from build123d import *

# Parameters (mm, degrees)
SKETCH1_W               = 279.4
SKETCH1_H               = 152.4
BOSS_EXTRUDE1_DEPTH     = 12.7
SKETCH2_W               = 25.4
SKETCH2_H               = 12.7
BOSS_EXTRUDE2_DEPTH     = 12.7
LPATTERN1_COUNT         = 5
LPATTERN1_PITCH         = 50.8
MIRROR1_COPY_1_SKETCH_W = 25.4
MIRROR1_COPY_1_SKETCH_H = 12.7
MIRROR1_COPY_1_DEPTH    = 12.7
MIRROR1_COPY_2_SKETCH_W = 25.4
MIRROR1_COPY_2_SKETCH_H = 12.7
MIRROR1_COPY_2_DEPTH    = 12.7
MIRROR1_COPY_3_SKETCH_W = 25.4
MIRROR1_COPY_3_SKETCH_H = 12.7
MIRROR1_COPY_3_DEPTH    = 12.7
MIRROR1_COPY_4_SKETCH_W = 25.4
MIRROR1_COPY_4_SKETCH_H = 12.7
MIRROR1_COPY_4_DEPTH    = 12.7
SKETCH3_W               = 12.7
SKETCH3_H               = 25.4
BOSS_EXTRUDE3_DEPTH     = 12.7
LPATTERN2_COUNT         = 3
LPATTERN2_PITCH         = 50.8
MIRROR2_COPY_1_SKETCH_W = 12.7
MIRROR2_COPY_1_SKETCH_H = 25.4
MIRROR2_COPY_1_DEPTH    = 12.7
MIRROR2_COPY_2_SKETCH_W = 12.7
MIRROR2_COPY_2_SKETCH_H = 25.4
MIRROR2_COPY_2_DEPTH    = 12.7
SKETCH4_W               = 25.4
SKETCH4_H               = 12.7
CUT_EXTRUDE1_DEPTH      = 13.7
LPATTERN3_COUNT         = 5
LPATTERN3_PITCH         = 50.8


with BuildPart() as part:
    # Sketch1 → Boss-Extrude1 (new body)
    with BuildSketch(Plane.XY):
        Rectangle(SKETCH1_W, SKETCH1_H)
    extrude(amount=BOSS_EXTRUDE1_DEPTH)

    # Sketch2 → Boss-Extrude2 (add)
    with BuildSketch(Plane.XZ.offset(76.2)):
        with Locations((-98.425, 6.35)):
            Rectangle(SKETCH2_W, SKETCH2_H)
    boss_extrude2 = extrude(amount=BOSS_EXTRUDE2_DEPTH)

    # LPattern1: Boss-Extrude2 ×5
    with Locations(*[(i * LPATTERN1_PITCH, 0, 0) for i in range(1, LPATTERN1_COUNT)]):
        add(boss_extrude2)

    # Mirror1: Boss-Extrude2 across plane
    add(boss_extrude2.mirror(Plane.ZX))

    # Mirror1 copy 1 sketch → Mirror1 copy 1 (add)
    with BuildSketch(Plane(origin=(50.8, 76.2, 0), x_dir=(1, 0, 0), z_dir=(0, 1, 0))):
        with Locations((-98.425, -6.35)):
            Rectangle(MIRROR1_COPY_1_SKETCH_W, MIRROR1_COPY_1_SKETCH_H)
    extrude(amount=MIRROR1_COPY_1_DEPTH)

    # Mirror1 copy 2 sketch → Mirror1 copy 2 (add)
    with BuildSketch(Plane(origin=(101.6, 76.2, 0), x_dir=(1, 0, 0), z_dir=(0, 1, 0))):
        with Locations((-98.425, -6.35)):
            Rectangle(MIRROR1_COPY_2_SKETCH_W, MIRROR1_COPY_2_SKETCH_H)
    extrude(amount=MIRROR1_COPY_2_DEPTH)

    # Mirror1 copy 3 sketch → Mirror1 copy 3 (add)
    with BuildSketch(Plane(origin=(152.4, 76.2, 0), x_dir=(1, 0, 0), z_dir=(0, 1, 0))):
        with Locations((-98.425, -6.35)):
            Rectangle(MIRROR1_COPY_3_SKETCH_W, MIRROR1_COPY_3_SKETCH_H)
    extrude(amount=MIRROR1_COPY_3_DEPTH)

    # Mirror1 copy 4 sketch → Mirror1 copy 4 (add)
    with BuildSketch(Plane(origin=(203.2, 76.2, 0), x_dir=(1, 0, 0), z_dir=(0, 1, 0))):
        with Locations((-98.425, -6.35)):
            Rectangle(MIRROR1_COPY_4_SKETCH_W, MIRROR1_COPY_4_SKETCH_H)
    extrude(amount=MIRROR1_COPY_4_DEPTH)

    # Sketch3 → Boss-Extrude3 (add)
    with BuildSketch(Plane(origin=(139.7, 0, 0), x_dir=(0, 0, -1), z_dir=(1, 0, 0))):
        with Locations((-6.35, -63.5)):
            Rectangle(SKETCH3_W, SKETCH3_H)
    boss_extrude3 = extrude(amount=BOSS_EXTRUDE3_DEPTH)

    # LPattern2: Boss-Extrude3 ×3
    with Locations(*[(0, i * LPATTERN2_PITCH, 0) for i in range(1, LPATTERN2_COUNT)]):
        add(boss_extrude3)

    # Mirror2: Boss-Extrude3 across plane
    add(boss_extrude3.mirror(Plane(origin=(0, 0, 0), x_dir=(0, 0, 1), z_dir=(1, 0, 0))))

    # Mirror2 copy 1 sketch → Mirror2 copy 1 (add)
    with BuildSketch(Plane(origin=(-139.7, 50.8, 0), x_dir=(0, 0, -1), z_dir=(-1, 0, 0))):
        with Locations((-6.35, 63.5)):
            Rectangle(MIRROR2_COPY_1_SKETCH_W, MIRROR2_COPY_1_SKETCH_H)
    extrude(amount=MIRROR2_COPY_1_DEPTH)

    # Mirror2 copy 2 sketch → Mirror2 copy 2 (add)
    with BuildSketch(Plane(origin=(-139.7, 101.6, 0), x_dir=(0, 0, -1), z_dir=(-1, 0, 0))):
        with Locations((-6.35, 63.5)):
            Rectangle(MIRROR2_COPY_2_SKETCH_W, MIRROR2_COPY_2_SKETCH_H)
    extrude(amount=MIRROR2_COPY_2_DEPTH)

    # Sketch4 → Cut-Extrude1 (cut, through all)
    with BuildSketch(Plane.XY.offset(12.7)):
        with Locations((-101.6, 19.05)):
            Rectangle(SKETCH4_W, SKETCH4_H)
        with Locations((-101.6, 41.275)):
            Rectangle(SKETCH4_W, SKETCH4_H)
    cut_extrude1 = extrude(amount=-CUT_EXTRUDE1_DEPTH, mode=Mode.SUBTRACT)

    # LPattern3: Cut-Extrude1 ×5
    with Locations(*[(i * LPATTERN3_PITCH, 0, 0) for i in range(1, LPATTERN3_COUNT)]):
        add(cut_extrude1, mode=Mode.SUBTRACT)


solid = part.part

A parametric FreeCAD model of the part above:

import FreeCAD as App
import Part
import Sketcher
from FreeCAD import Vector
Q = App.Units.Quantity

doc = App.newDocument("Part")
body = doc.addObject("PartDesign::Body", "Body")

# Sketch on XY plane
sketch1 = body.newObject("Sketcher::SketchObject", "Sketch")
sketch1.AttachmentSupport = (doc.getObject("XY_Plane"), [""])
sketch1.MapMode = "FlatFace"
sketch1.addGeometry(Part.LineSegment(Vector(-139.7, 76.2, 0), Vector(-139.7, -76.2, 0)), False)
sketch1.addGeometry(Part.LineSegment(Vector(-139.7, -76.2, 0), Vector(139.7, -76.2, 0)), False)
sketch1.addGeometry(Part.LineSegment(Vector(139.7, -76.2, 0), Vector(139.7, 76.2, 0)), False)
sketch1.addGeometry(Part.LineSegment(Vector(139.7, 76.2, 0), Vector(-139.7, 76.2, 0)), False)
sketch1.addConstraint(Sketcher.Constraint("Coincident", 0, 2, 1, 1))
sketch1.addConstraint(Sketcher.Constraint("Coincident", 1, 2, 2, 1))
sketch1.addConstraint(Sketcher.Constraint("Coincident", 2, 2, 3, 1))
sketch1.addConstraint(Sketcher.Constraint("Coincident", 3, 2, 0, 1))
sketch1.addConstraint(Sketcher.Constraint("Vertical", 0))
sketch1.addConstraint(Sketcher.Constraint("Horizontal", 1))
sketch1.addConstraint(Sketcher.Constraint("Vertical", 2))
sketch1.addConstraint(Sketcher.Constraint("Horizontal", 3))
sketch1.addConstraint(Sketcher.Constraint("Symmetric", 0, 2, 2, 2, -1, 1))
sketch1.addConstraint(Sketcher.Constraint("DistanceX", 1, 1, 1, 2, Q("11 in")))
sketch1.addConstraint(Sketcher.Constraint("DistanceY", 0, 2, 0, 1, Q("6 in")))
pad1 = body.newObject("PartDesign::Pad", "Pad")
pad1.Profile = sketch1
pad1.Length = Q("0.5 in")

# Sketch on XZ plane
sketch2 = body.newObject("Sketcher::SketchObject", "Sketch001")
sketch2.AttachmentSupport = (doc.getObject("XZ_Plane"), [""])
sketch2.MapMode = "FlatFace"
sketch2.AttachmentOffset = App.Placement(Vector(0, 0, 3 * 25.4), App.Rotation())
sketch2.addGeometry(Part.LineSegment(Vector(-111.125, 12.7, 0), Vector(-111.125, 0, 0)), False)
sketch2.addGeometry(Part.LineSegment(Vector(-111.125, 0, 0), Vector(-85.725, 0, 0)), False)
sketch2.addGeometry(Part.LineSegment(Vector(-85.725, 0, 0), Vector(-85.725, 12.7, 0)), False)
sketch2.addGeometry(Part.LineSegment(Vector(-85.725, 12.7, 0), Vector(-111.125, 12.7, 0)), False)
sketch2.addConstraint(Sketcher.Constraint("Coincident", 0, 2, 1, 1))
sketch2.addConstraint(Sketcher.Constraint("Coincident", 1, 2, 2, 1))
sketch2.addConstraint(Sketcher.Constraint("Coincident", 2, 2, 3, 1))
sketch2.addConstraint(Sketcher.Constraint("Coincident", 3, 2, 0, 1))
sketch2.addConstraint(Sketcher.Constraint("Vertical", 0))
sketch2.addConstraint(Sketcher.Constraint("Horizontal", 1))
sketch2.addConstraint(Sketcher.Constraint("Vertical", 2))
sketch2.addConstraint(Sketcher.Constraint("Horizontal", 3))
sketch2.addConstraint(Sketcher.Constraint("PointOnObject", 0, 2, -1))
sketch2.addConstraint(Sketcher.Constraint("DistanceX", 1, 1, 1, 2, Q("1 in")))
sketch2.addConstraint(Sketcher.Constraint("DistanceY", 0, 2, 0, 1, Q("0.5 in")))
sketch2.addConstraint(Sketcher.Constraint("DistanceX", 0, 2, -1, 1, Q("4.375 in")))
pad2 = body.newObject("PartDesign::Pad", "Pad001")
pad2.Profile = sketch2
pad2.Length = Q("0.5 in")
doc.recompute()

linearpattern = body.newObject("PartDesign::LinearPattern", "LinearPattern")
linearpattern.Originals = [pad2]
linearpattern.Direction = (doc.getObject("X_Axis"), [""])
linearpattern.Mode = "offset"
linearpattern.Offset = Q("2 in")
linearpattern.Occurrences = 5
body.Tip = linearpattern
doc.recompute()

mirrored = body.newObject("PartDesign::Mirrored", "Mirrored")
mirrored.Originals = [pad2]
mirrored.MirrorPlane = (doc.getObject("XZ_Plane"), [""])
body.Tip = mirrored

# Sketch on XZ plane
sketch3 = body.newObject("Sketcher::SketchObject", "Sketch002")
sketch3.AttachmentSupport = (doc.getObject("XZ_Plane"), [""])
sketch3.MapMode = "FlatFace"
sketch3.AttachmentOffset = App.Placement(Vector(0, 0, -3 * 25.4), App.Rotation())
sketch3.addGeometry(Part.LineSegment(Vector(-60.325, 0, 0), Vector(-60.325, 12.7, 0)), False)
sketch3.addGeometry(Part.LineSegment(Vector(-60.325, 12.7, 0), Vector(-34.925, 12.7, 0)), False)
sketch3.addGeometry(Part.LineSegment(Vector(-34.925, 12.7, 0), Vector(-34.925, 0, 0)), False)
sketch3.addGeometry(Part.LineSegment(Vector(-34.925, 0, 0), Vector(-60.325, 0, 0)), False)
sketch3.addConstraint(Sketcher.Constraint("Coincident", 0, 2, 1, 1))
sketch3.addConstraint(Sketcher.Constraint("Coincident", 1, 2, 2, 1))
sketch3.addConstraint(Sketcher.Constraint("Coincident", 2, 2, 3, 1))
sketch3.addConstraint(Sketcher.Constraint("Coincident", 3, 2, 0, 1))
sketch3.addConstraint(Sketcher.Constraint("Vertical", 0))
sketch3.addConstraint(Sketcher.Constraint("Horizontal", 1))
sketch3.addConstraint(Sketcher.Constraint("Vertical", 2))
sketch3.addConstraint(Sketcher.Constraint("Horizontal", 3))
sketch3.addConstraint(Sketcher.Constraint("PointOnObject", 2, 2, -1))
sketch3.addConstraint(Sketcher.Constraint("DistanceX", 1, 1, 1, 2, Q("1 in")))
sketch3.addConstraint(Sketcher.Constraint("DistanceY", 0, 1, 0, 2, Q("0.5 in")))
sketch3.addConstraint(Sketcher.Constraint("DistanceX", 0, 2, -1, 1, Q("2.375 in")))
pad3 = body.newObject("PartDesign::Pad", "Pad002")
pad3.Profile = sketch3
pad3.Length = Q("0.5 in")
pad3.Reversed = True

# Sketch on XZ plane
sketch4 = body.newObject("Sketcher::SketchObject", "Sketch003")
sketch4.AttachmentSupport = (doc.getObject("XZ_Plane"), [""])
sketch4.MapMode = "FlatFace"
sketch4.AttachmentOffset = App.Placement(Vector(0, 0, -3 * 25.4), App.Rotation())
sketch4.addGeometry(Part.LineSegment(Vector(-9.525, 0, 0), Vector(-9.525, 12.7, 0)), False)
sketch4.addGeometry(Part.LineSegment(Vector(-9.525, 12.7, 0), Vector(15.875, 12.7, 0)), False)
sketch4.addGeometry(Part.LineSegment(Vector(15.875, 12.7, 0), Vector(15.875, 0, 0)), False)
sketch4.addGeometry(Part.LineSegment(Vector(15.875, 0, 0), Vector(-9.525, 0, 0)), False)
sketch4.addConstraint(Sketcher.Constraint("Coincident", 0, 2, 1, 1))
sketch4.addConstraint(Sketcher.Constraint("Coincident", 1, 2, 2, 1))
sketch4.addConstraint(Sketcher.Constraint("Coincident", 2, 2, 3, 1))
sketch4.addConstraint(Sketcher.Constraint("Coincident", 3, 2, 0, 1))
sketch4.addConstraint(Sketcher.Constraint("Vertical", 0))
sketch4.addConstraint(Sketcher.Constraint("Horizontal", 1))
sketch4.addConstraint(Sketcher.Constraint("Vertical", 2))
sketch4.addConstraint(Sketcher.Constraint("Horizontal", 3))
sketch4.addConstraint(Sketcher.Constraint("PointOnObject", 2, 2, -1))
sketch4.addConstraint(Sketcher.Constraint("DistanceX", 1, 1, 1, 2, Q("1 in")))
sketch4.addConstraint(Sketcher.Constraint("DistanceY", 0, 1, 0, 2, Q("0.5 in")))
sketch4.addConstraint(Sketcher.Constraint("DistanceX", 0, 2, -1, 1, Q("0.375 in")))
pad4 = body.newObject("PartDesign::Pad", "Pad003")
pad4.Profile = sketch4
pad4.Length = Q("0.5 in")
pad4.Reversed = True

# Sketch on XZ plane
sketch5 = body.newObject("Sketcher::SketchObject", "Sketch004")
sketch5.AttachmentSupport = (doc.getObject("XZ_Plane"), [""])
sketch5.MapMode = "FlatFace"
sketch5.AttachmentOffset = App.Placement(Vector(0, 0, -3 * 25.4), App.Rotation())
sketch5.addGeometry(Part.LineSegment(Vector(41.275, 0, 0), Vector(41.275, 12.7, 0)), False)
sketch5.addGeometry(Part.LineSegment(Vector(41.275, 12.7, 0), Vector(66.675, 12.7, 0)), False)
sketch5.addGeometry(Part.LineSegment(Vector(66.675, 12.7, 0), Vector(66.675, 0, 0)), False)
sketch5.addGeometry(Part.LineSegment(Vector(66.675, 0, 0), Vector(41.275, 0, 0)), False)
sketch5.addConstraint(Sketcher.Constraint("Coincident", 0, 2, 1, 1))
sketch5.addConstraint(Sketcher.Constraint("Coincident", 1, 2, 2, 1))
sketch5.addConstraint(Sketcher.Constraint("Coincident", 2, 2, 3, 1))
sketch5.addConstraint(Sketcher.Constraint("Coincident", 3, 2, 0, 1))
sketch5.addConstraint(Sketcher.Constraint("Vertical", 0))
sketch5.addConstraint(Sketcher.Constraint("Horizontal", 1))
sketch5.addConstraint(Sketcher.Constraint("Vertical", 2))
sketch5.addConstraint(Sketcher.Constraint("Horizontal", 3))
sketch5.addConstraint(Sketcher.Constraint("PointOnObject", 2, 2, -1))
sketch5.addConstraint(Sketcher.Constraint("DistanceX", 1, 1, 1, 2, Q("1 in")))
sketch5.addConstraint(Sketcher.Constraint("DistanceY", 0, 1, 0, 2, Q("0.5 in")))
sketch5.addConstraint(Sketcher.Constraint("DistanceX", -1, 1, 0, 2, Q("1.625 in")))
pad5 = body.newObject("PartDesign::Pad", "Pad004")
pad5.Profile = sketch5
pad5.Length = Q("0.5 in")
pad5.Reversed = True

# Sketch on XZ plane
sketch6 = body.newObject("Sketcher::SketchObject", "Sketch005")
sketch6.AttachmentSupport = (doc.getObject("XZ_Plane"), [""])
sketch6.MapMode = "FlatFace"
sketch6.AttachmentOffset = App.Placement(Vector(0, 0, -3 * 25.4), App.Rotation())
sketch6.addGeometry(Part.LineSegment(Vector(92.075, 0, 0), Vector(92.075, 12.7, 0)), False)
sketch6.addGeometry(Part.LineSegment(Vector(92.075, 12.7, 0), Vector(117.475, 12.7, 0)), False)
sketch6.addGeometry(Part.LineSegment(Vector(117.475, 12.7, 0), Vector(117.475, 0, 0)), False)
sketch6.addGeometry(Part.LineSegment(Vector(117.475, 0, 0), Vector(92.075, 0, 0)), False)
sketch6.addConstraint(Sketcher.Constraint("Coincident", 0, 2, 1, 1))
sketch6.addConstraint(Sketcher.Constraint("Coincident", 1, 2, 2, 1))
sketch6.addConstraint(Sketcher.Constraint("Coincident", 2, 2, 3, 1))
sketch6.addConstraint(Sketcher.Constraint("Coincident", 3, 2, 0, 1))
sketch6.addConstraint(Sketcher.Constraint("Vertical", 0))
sketch6.addConstraint(Sketcher.Constraint("Horizontal", 1))
sketch6.addConstraint(Sketcher.Constraint("Vertical", 2))
sketch6.addConstraint(Sketcher.Constraint("Horizontal", 3))
sketch6.addConstraint(Sketcher.Constraint("PointOnObject", 2, 2, -1))
sketch6.addConstraint(Sketcher.Constraint("DistanceX", 1, 1, 1, 2, Q("1 in")))
sketch6.addConstraint(Sketcher.Constraint("DistanceY", 0, 1, 0, 2, Q("0.5 in")))
sketch6.addConstraint(Sketcher.Constraint("DistanceX", -1, 1, 0, 2, Q("3.625 in")))
pad6 = body.newObject("PartDesign::Pad", "Pad005")
pad6.Profile = sketch6
pad6.Length = Q("0.5 in")
pad6.Reversed = True

# Sketch on YZ plane
sketch7 = body.newObject("Sketcher::SketchObject", "Sketch006")
sketch7.AttachmentSupport = (doc.getObject("YZ_Plane"), [""])
sketch7.MapMode = "FlatFace"
sketch7.AttachmentOffset = App.Placement(Vector(0, 0, 5.5 * 25.4), App.Rotation())
sketch7.addGeometry(Part.LineSegment(Vector(-50.8, 12.7, 0), Vector(-76.2, 12.7, 0)), False)
sketch7.addGeometry(Part.LineSegment(Vector(-76.2, 12.7, 0), Vector(-76.2, 0, 0)), False)
sketch7.addGeometry(Part.LineSegment(Vector(-76.2, 0, 0), Vector(-50.8, 0, 0)), False)
sketch7.addGeometry(Part.LineSegment(Vector(-50.8, 0, 0), Vector(-50.8, 12.7, 0)), False)
sketch7.addConstraint(Sketcher.Constraint("Coincident", 0, 2, 1, 1))
sketch7.addConstraint(Sketcher.Constraint("Coincident", 1, 2, 2, 1))
sketch7.addConstraint(Sketcher.Constraint("Coincident", 2, 2, 3, 1))
sketch7.addConstraint(Sketcher.Constraint("Coincident", 3, 2, 0, 1))
sketch7.addConstraint(Sketcher.Constraint("Horizontal", 0))
sketch7.addConstraint(Sketcher.Constraint("Vertical", 1))
sketch7.addConstraint(Sketcher.Constraint("Horizontal", 2))
sketch7.addConstraint(Sketcher.Constraint("Vertical", 3))
sketch7.addConstraint(Sketcher.Constraint("PointOnObject", 1, 2, -1))
sketch7.addConstraint(Sketcher.Constraint("DistanceX", 0, 2, 0, 1, Q("1 in")))
sketch7.addConstraint(Sketcher.Constraint("DistanceY", 1, 2, 1, 1, Q("0.5 in")))
sketch7.addConstraint(Sketcher.Constraint("DistanceX", 0, 2, -1, 1, Q("3 in")))
pad7 = body.newObject("PartDesign::Pad", "Pad006")
pad7.Profile = sketch7
pad7.Length = Q("0.5 in")
doc.recompute()

linearpattern2 = body.newObject("PartDesign::LinearPattern", "LinearPattern001")
linearpattern2.Originals = [pad7]
linearpattern2.Direction = (doc.getObject("Y_Axis"), [""])
linearpattern2.Mode = "offset"
linearpattern2.Offset = Q("2 in")
linearpattern2.Occurrences = 3
body.Tip = linearpattern2
doc.recompute()

mirrored2 = body.newObject("PartDesign::Mirrored", "Mirrored001")
mirrored2.Originals = [pad7]
mirrored2.MirrorPlane = (doc.getObject("YZ_Plane"), [""])
body.Tip = mirrored2

# Sketch on YZ plane
sketch8 = body.newObject("Sketcher::SketchObject", "Sketch007")
sketch8.AttachmentSupport = (doc.getObject("YZ_Plane"), [""])
sketch8.MapMode = "FlatFace"
sketch8.AttachmentOffset = App.Placement(Vector(0, 0, -5.5 * 25.4), App.Rotation())
sketch8.addGeometry(Part.LineSegment(Vector(-25.4, 12.7, 0), Vector(0, 12.7, 0)), False)
sketch8.addGeometry(Part.LineSegment(Vector(0, 12.7, 0), Vector(0, 0, 0)), False)
sketch8.addGeometry(Part.LineSegment(Vector(0, 0, 0), Vector(-25.4, 0, 0)), False)
sketch8.addGeometry(Part.LineSegment(Vector(-25.4, 0, 0), Vector(-25.4, 12.7, 0)), False)
sketch8.addConstraint(Sketcher.Constraint("Coincident", 0, 2, 1, 1))
sketch8.addConstraint(Sketcher.Constraint("Coincident", 1, 2, 2, 1))
sketch8.addConstraint(Sketcher.Constraint("Coincident", 2, 2, 3, 1))
sketch8.addConstraint(Sketcher.Constraint("Coincident", 3, 2, 0, 1))
sketch8.addConstraint(Sketcher.Constraint("Horizontal", 0))
sketch8.addConstraint(Sketcher.Constraint("Vertical", 1))
sketch8.addConstraint(Sketcher.Constraint("Horizontal", 2))
sketch8.addConstraint(Sketcher.Constraint("Vertical", 3))
sketch8.addConstraint(Sketcher.Constraint("Coincident", 1, 2, -1, 1))
sketch8.addConstraint(Sketcher.Constraint("DistanceX", 0, 1, 0, 2, Q("1 in")))
sketch8.addConstraint(Sketcher.Constraint("DistanceY", 1, 2, 1, 1, Q("0.5 in")))
pad8 = body.newObject("PartDesign::Pad", "Pad007")
pad8.Profile = sketch8
pad8.Length = Q("0.5 in")
pad8.Reversed = True

# Sketch on YZ plane
sketch9 = body.newObject("Sketcher::SketchObject", "Sketch008")
sketch9.AttachmentSupport = (doc.getObject("YZ_Plane"), [""])
sketch9.MapMode = "FlatFace"
sketch9.AttachmentOffset = App.Placement(Vector(0, 0, -5.5 * 25.4), App.Rotation())
sketch9.addGeometry(Part.LineSegment(Vector(25.4, 12.7, 0), Vector(50.8, 12.7, 0)), False)
sketch9.addGeometry(Part.LineSegment(Vector(50.8, 12.7, 0), Vector(50.8, 0, 0)), False)
sketch9.addGeometry(Part.LineSegment(Vector(50.8, 0, 0), Vector(25.4, 0, 0)), False)
sketch9.addGeometry(Part.LineSegment(Vector(25.4, 0, 0), Vector(25.4, 12.7, 0)), False)
sketch9.addConstraint(Sketcher.Constraint("Coincident", 0, 2, 1, 1))
sketch9.addConstraint(Sketcher.Constraint("Coincident", 1, 2, 2, 1))
sketch9.addConstraint(Sketcher.Constraint("Coincident", 2, 2, 3, 1))
sketch9.addConstraint(Sketcher.Constraint("Coincident", 3, 2, 0, 1))
sketch9.addConstraint(Sketcher.Constraint("Horizontal", 0))
sketch9.addConstraint(Sketcher.Constraint("Vertical", 1))
sketch9.addConstraint(Sketcher.Constraint("Horizontal", 2))
sketch9.addConstraint(Sketcher.Constraint("Vertical", 3))
sketch9.addConstraint(Sketcher.Constraint("PointOnObject", 1, 2, -1))
sketch9.addConstraint(Sketcher.Constraint("DistanceX", 0, 1, 0, 2, Q("1 in")))
sketch9.addConstraint(Sketcher.Constraint("DistanceY", 1, 2, 1, 1, Q("0.5 in")))
sketch9.addConstraint(Sketcher.Constraint("DistanceX", -1, 1, 0, 2, Q("2 in")))
pad9 = body.newObject("PartDesign::Pad", "Pad008")
pad9.Profile = sketch9
pad9.Length = Q("0.5 in")
pad9.Reversed = True

# Sketch on XY plane
sketch10 = body.newObject("Sketcher::SketchObject", "Sketch009")
sketch10.AttachmentSupport = (doc.getObject("XY_Plane"), [""])
sketch10.MapMode = "FlatFace"
sketch10.AttachmentOffset = App.Placement(Vector(0, 0, 0.5 * 25.4), App.Rotation())
sketch10.addGeometry(Part.LineSegment(Vector(-114.3, 25.4, 0), Vector(-114.3, 12.7, 0)), False)
sketch10.addGeometry(Part.LineSegment(Vector(-114.3, 12.7, 0), Vector(-88.9, 12.7, 0)), False)
sketch10.addGeometry(Part.LineSegment(Vector(-88.9, 12.7, 0), Vector(-88.9, 25.4, 0)), False)
sketch10.addGeometry(Part.LineSegment(Vector(-88.9, 25.4, 0), Vector(-114.3, 25.4, 0)), False)
sketch10.addGeometry(Part.LineSegment(Vector(-114.3, 47.625, 0), Vector(-114.3, 34.925, 0)), False)
sketch10.addGeometry(Part.LineSegment(Vector(-114.3, 34.925, 0), Vector(-88.9, 34.925, 0)), False)
sketch10.addGeometry(Part.LineSegment(Vector(-88.9, 34.925, 0), Vector(-88.9, 47.625, 0)), False)
sketch10.addGeometry(Part.LineSegment(Vector(-88.9, 47.625, 0), Vector(-114.3, 47.625, 0)), False)
sketch10.addConstraint(Sketcher.Constraint("Coincident", 0, 2, 1, 1))
sketch10.addConstraint(Sketcher.Constraint("Coincident", 1, 2, 2, 1))
sketch10.addConstraint(Sketcher.Constraint("Coincident", 2, 2, 3, 1))
sketch10.addConstraint(Sketcher.Constraint("Coincident", 3, 2, 0, 1))
sketch10.addConstraint(Sketcher.Constraint("Coincident", 4, 2, 5, 1))
sketch10.addConstraint(Sketcher.Constraint("Coincident", 5, 2, 6, 1))
sketch10.addConstraint(Sketcher.Constraint("Coincident", 6, 2, 7, 1))
sketch10.addConstraint(Sketcher.Constraint("Coincident", 7, 2, 4, 1))
sketch10.addConstraint(Sketcher.Constraint("Vertical", 0))
sketch10.addConstraint(Sketcher.Constraint("Horizontal", 1))
sketch10.addConstraint(Sketcher.Constraint("Vertical", 2))
sketch10.addConstraint(Sketcher.Constraint("Horizontal", 3))
sketch10.addConstraint(Sketcher.Constraint("Vertical", 4))
sketch10.addConstraint(Sketcher.Constraint("Horizontal", 5))
sketch10.addConstraint(Sketcher.Constraint("Vertical", 6))
sketch10.addConstraint(Sketcher.Constraint("Horizontal", 7))
sketch10.addConstraint(Sketcher.Constraint("Vertical", 3, 2, 4, 2))
sketch10.addConstraint(Sketcher.Constraint("Vertical", 2, 2, 5, 2))
sketch10.addConstraint(Sketcher.Constraint("Equal", 2, 4))
sketch10.addConstraint(Sketcher.Constraint("DistanceX", 1, 1, 1, 2, Q("1 in")))
sketch10.addConstraint(Sketcher.Constraint("DistanceY", 0, 2, 0, 1, Q("0.5 in")))
sketch10.addConstraint(Sketcher.Constraint("DistanceY", -1, 1, 2, 2, Q("1 in")))
sketch10.addConstraint(Sketcher.Constraint("DistanceX", 0, 2, -1, 1, Q("4.5 in")))
sketch10.addConstraint(Sketcher.Constraint("DistanceY", -1, 1, 4, 2, Q("1.375 in")))
pocket1 = body.newObject("PartDesign::Pocket", "Pocket")
pocket1.Profile = sketch10
pocket1.Type = "ThroughAll"
doc.recompute()

linearpattern3 = body.newObject("PartDesign::LinearPattern", "LinearPattern002")
linearpattern3.Originals = [pocket1]
linearpattern3.Direction = (doc.getObject("X_Axis"), [""])
linearpattern3.Mode = "offset"
linearpattern3.Offset = Q("2 in")
linearpattern3.Occurrences = 5
body.Tip = linearpattern3

doc.recompute()
